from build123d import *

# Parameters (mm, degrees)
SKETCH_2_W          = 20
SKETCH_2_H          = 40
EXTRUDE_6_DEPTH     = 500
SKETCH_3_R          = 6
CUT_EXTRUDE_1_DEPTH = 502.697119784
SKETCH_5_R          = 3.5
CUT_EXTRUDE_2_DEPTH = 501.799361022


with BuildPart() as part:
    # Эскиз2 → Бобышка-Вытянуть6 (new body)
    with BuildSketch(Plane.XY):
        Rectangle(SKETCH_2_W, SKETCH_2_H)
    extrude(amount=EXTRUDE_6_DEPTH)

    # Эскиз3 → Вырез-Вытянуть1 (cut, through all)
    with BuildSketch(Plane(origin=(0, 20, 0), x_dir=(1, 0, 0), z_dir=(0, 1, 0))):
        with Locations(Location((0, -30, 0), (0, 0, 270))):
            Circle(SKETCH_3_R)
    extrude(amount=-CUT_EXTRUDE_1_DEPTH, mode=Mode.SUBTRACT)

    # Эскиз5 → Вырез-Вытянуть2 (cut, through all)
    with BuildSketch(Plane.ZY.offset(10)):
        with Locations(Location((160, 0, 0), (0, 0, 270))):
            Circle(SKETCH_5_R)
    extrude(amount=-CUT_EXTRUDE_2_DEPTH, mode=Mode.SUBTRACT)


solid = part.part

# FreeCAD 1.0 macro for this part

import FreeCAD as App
import Part
import Sketcher
from FreeCAD import Vector


def add_polygon(sketch, points):
    """Adds a closed chain of lines whose ends are joined by coincident constraints."""
    first, n = sketch.GeometryCount, len(points)
    for a, b in zip(points, points[1:] + points[:1]):
        sketch.addGeometry(Part.LineSegment(App.Vector(*a, 0), App.Vector(*b, 0)), False)
    for i in range(n):
        sketch.addConstraint(Sketcher.Constraint("Coincident", first + i, 2, first + (i + 1) % n, 1))

doc = App.newDocument("Part")
body = doc.addObject("PartDesign::Body", "Body")

sketch1 = body.newObject("Sketcher::SketchObject", "Sketch")
sketch1.AttachmentSupport = (doc.getObject("XY_Plane"), [""])
sketch1.MapMode = "FlatFace"
add_polygon(sketch1, [(-10, 20), (-10, -20), (10, -20), (10, 20)])
sketch1.addConstraint([
    Sketcher.Constraint("Vertical", 0),
    Sketcher.Constraint("Horizontal", 1),
    Sketcher.Constraint("Vertical", 2),
    Sketcher.Constraint("Horizontal", 3),
    Sketcher.Constraint("Symmetric", 0, 2, 2, 2, -1, 1),
    Sketcher.Constraint("DistanceX", 1, 1, 1, 2, 20.0),
    Sketcher.Constraint("DistanceY", 0, 2, 0, 1, 40.0),
])
pad1 = body.newObject("PartDesign::Pad", "Pad")
pad1.Profile = sketch1
pad1.Length = 500

sketch2 = body.newObject("Sketcher::SketchObject", "Sketch001")
sketch2.AttachmentSupport = (doc.getObject("XZ_Plane"), [""])
sketch2.MapMode = "FlatFace"
sketch2.AttachmentOffset = App.Placement(Vector(0, 0, -20), App.Rotation())
sketch2.addGeometry(Part.Circle(Vector(0, 30, 0), Vector(0, 0, 1), 6), False)
sketch2.addConstraint([
    Sketcher.Constraint("PointOnObject", 0, 3, -2),
    Sketcher.Constraint("Diameter", 0, 12.0),
    Sketcher.Constraint("DistanceY", -1, 1, 0, 3, 30.0),
])
pocket1 = body.newObject("PartDesign::Pocket", "Pocket")
pocket1.Profile = sketch2
pocket1.Type = "ThroughAll"
pocket1.Reversed = True

sketch3 = body.newObject("Sketcher::SketchObject", "Sketch002")
sketch3.AttachmentSupport = (doc.getObject("YZ_Plane"), [""])
sketch3.MapMode = "FlatFace"
sketch3.AttachmentOffset = App.Placement(Vector(0, 0, -10), App.Rotation())
sketch3.addGeometry(Part.Circle(Vector(0, 160, 0), Vector(0, 0, 1), 3.5), False)
sketch3.addConstraint([
    Sketcher.Constraint("PointOnObject", 0, 3, -2),
    Sketcher.Constraint("Diameter", 0, 7.0),
    Sketcher.Constraint("DistanceY", -1, 1, 0, 3, 160.0),
])
pocket2 = body.newObject("PartDesign::Pocket", "Pocket001")
pocket2.Profile = sketch3
pocket2.Type = "ThroughAll"
pocket2.Reversed = True

doc.recompute()
